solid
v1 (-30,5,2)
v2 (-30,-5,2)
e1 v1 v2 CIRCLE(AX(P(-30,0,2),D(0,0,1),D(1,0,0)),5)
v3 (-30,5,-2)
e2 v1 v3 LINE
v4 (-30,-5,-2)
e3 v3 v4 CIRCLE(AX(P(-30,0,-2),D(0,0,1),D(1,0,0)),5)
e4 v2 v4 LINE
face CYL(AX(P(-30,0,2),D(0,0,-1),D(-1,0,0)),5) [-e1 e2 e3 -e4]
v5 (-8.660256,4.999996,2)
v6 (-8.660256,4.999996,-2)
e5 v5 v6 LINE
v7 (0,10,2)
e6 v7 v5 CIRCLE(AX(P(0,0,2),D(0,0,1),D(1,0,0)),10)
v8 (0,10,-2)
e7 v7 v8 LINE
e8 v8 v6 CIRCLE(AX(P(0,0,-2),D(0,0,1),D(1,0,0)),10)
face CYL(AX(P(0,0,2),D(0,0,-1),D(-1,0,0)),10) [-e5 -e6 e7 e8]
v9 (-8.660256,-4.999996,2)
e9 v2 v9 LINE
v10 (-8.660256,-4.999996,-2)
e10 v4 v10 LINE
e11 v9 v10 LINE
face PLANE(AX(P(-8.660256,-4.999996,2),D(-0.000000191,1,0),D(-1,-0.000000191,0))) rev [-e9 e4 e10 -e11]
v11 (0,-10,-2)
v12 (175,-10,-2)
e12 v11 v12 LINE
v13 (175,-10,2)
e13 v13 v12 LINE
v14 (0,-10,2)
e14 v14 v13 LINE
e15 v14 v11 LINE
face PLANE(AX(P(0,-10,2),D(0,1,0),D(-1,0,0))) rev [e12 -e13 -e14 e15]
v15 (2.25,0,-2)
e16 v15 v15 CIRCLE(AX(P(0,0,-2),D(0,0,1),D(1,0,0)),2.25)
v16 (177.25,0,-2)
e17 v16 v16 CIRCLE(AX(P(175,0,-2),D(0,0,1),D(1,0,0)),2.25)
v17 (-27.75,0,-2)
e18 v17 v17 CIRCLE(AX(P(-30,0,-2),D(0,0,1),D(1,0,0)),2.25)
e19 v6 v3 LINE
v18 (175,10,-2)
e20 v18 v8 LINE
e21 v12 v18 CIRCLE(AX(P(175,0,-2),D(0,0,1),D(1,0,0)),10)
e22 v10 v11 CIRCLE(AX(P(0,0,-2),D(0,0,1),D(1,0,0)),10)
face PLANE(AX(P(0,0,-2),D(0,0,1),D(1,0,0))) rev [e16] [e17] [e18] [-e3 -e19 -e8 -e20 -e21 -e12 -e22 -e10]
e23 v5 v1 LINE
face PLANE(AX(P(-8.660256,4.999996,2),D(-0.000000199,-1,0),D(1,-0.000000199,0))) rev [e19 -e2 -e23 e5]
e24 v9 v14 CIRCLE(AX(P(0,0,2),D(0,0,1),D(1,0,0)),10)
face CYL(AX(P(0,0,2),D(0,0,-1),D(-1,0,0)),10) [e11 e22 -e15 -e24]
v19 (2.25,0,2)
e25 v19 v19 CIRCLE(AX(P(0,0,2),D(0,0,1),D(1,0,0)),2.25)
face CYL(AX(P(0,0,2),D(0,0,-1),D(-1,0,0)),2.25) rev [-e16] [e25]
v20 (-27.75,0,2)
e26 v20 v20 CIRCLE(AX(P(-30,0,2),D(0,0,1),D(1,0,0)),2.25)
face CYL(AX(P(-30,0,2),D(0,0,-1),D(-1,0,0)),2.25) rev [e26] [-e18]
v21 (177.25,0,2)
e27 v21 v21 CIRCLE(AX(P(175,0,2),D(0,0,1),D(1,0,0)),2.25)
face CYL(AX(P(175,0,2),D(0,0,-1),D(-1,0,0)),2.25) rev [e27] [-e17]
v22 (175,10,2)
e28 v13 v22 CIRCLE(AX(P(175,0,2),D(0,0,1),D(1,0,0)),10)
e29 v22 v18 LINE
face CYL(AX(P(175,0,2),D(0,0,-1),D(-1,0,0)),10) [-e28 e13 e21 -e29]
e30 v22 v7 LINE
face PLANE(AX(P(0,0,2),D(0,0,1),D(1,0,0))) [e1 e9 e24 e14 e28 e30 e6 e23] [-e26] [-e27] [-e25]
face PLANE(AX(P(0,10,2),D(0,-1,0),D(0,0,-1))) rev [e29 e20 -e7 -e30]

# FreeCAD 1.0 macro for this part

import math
import FreeCAD as App
import Part
import Sketcher

V = App.Vector

doc = App.newDocument("Part")
body = doc.addObject("PartDesign::Body", "Body")

# Sketch on XY plane
sketch1 = body.newObject("Sketcher::SketchObject", "Sketch")
sketch1.AttachmentSupport = (doc.getObject("XY_Plane"), [""])
sketch1.MapMode = "FlatFace"
sketch1.addGeometry([
    Part.LineSegment(V(175, 10, 0), V(0, 10, 0)),  # 0
    Part.ArcOfCircle(Part.Circle(V(0, 0, 0), V(0, 0, 1), 10), math.radians(90), math.radians(150.000028)),  # 1
    Part.LineSegment(V(-8.660256, 4.999996, 0), V(-30, 5, 0)),  # 2
    Part.ArcOfCircle(Part.Circle(V(-30, 0, 0), V(0, 0, 1), 5), math.radians(90), math.radians(270)),  # 3
    Part.LineSegment(V(-30, -5, 0), V(-8.660256, -4.999996, 0)),  # 4
    Part.ArcOfCircle(Part.Circle(V(0, 0, 0), V(0, 0, 1), 10), math.radians(-150.000027), math.radians(-90)),  # 5
    Part.LineSegment(V(0, -10, 0), V(175, -10, 0)),  # 6
    Part.ArcOfCircle(Part.Circle(V(175, 0, 0), V(0, 0, 1), 10), math.radians(-90), math.radians(90)),  # 7
    Part.Circle(V(175, 0, 0), V(0, 0, 1), 2.25),  # 8
    Part.Circle(V(0, 0, 0), V(0, 0, 1), 2.25),  # 9
    Part.Circle(V(-30, 0, 0), V(0, 0, 1), 2.25),  # 10
], False)
sketch1.addConstraint([
    Sketcher.Constraint("Tangent", 0, 2, 1, 1),
    Sketcher.Constraint("Coincident", 1, 2, 2, 1),
    Sketcher.Constraint("Tangent", 2, 2, 3, 1),
    Sketcher.Constraint("Tangent", 3, 2, 4, 1),
    Sketcher.Constraint("Coincident", 4, 2, 5, 1),
    Sketcher.Constraint("Tangent", 5, 2, 6, 1),
    Sketcher.Constraint("Tangent", 6, 2, 7, 1),
    Sketcher.Constraint("Tangent", 7, 2, 0, 1),
    Sketcher.Constraint("Horizontal", 0),
    Sketcher.Constraint("Horizontal", 6),
    Sketcher.Constraint("Coincident", 1, 3, -1, 1),
    Sketcher.Constraint("Coincident", 5, 3, -1, 1),
    Sketcher.Constraint("Coincident", 9, 3, -1, 1),
    Sketcher.Constraint("Coincident", 8, 3, 7, 3),
    Sketcher.Constraint("Coincident", 10, 3, 3, 3),
    Sketcher.Constraint("Equal", 1, 5),
    Sketcher.Constraint("Equal", 8, 9),
    Sketcher.Constraint("Equal", 9, 10),
    Sketcher.Constraint("Symmetric", 2, 2, 3, 2, -1),
    Sketcher.Constraint("Parallel", 2, 4),
    Sketcher.Constraint("Radius", 1, 10.0),
    Sketcher.Constraint("Radius", 3, 5.0),
    Sketcher.Constraint("Diameter", 8, 4.5),
    Sketcher.Constraint("DistanceX", 0, 2, 0, 1, 175.0),
    Sketcher.Constraint("DistanceX", 3, 3, -1, 1, 30.0),
])
pad1 = body.newObject("PartDesign::Pad", "Pad")
pad1.Profile = sketch1
pad1.Length = 4
pad1.Midplane = True

doc.recompute()
